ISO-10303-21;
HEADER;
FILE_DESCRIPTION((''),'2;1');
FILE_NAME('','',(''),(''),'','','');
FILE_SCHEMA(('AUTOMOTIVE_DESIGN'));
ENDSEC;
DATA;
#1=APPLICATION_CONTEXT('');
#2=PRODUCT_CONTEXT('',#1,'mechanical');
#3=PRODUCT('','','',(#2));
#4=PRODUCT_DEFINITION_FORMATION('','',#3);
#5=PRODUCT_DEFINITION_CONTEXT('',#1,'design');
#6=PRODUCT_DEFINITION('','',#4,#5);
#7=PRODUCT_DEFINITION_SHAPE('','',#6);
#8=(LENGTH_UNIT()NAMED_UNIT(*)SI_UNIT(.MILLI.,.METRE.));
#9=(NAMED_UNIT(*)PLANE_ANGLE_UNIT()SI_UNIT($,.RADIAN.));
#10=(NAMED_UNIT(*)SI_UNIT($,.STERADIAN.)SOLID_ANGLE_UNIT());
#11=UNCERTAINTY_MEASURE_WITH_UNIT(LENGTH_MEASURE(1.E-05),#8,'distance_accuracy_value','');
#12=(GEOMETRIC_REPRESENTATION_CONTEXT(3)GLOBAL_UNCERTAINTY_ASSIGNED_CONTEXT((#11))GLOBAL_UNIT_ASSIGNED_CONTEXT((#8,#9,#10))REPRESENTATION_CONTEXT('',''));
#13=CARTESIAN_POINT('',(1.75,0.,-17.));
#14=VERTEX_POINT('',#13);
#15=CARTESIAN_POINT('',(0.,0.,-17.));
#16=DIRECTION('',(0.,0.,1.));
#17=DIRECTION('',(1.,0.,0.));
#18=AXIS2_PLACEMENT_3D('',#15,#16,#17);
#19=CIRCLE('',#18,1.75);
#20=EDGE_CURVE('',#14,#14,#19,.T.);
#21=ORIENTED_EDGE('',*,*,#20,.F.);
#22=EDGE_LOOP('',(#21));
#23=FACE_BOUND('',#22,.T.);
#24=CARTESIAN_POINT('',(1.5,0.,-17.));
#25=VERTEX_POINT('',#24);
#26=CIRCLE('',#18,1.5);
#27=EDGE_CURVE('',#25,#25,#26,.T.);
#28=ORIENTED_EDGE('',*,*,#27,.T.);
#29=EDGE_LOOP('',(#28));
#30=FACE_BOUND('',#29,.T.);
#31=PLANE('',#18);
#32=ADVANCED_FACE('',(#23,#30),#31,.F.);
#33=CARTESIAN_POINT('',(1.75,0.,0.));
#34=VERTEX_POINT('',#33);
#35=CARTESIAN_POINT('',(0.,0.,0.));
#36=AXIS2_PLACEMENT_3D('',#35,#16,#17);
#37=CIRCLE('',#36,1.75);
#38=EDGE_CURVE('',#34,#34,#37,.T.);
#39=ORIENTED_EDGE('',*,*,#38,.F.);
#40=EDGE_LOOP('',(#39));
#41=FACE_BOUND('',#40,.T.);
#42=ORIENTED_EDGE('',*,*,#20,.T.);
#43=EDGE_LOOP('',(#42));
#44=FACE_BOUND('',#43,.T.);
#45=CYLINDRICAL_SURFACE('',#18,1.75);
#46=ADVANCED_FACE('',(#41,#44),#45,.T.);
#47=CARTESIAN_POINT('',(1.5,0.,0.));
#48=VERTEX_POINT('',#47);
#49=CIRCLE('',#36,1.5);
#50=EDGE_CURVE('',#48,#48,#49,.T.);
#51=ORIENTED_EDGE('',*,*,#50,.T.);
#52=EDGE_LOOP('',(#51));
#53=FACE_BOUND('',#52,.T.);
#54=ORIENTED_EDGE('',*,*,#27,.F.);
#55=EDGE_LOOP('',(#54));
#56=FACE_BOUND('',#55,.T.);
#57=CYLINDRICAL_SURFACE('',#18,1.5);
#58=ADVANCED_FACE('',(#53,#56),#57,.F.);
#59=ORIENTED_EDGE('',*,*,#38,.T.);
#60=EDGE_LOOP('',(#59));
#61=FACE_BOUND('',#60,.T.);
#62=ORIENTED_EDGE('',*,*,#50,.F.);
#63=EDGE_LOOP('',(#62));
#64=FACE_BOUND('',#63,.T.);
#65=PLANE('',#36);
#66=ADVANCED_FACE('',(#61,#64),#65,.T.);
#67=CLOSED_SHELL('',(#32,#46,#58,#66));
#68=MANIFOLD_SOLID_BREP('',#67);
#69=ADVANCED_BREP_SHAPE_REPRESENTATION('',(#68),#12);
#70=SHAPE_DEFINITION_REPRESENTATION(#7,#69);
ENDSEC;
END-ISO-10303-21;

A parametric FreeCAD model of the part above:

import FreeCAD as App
import Part
import Sketcher
Q = App.Units.Quantity

doc = App.newDocument("Part")
body = doc.addObject("PartDesign::Body", "Body")

# Sketch on XY plane
sketch1 = doc.addObject("Sketcher::SketchObject", "Sketch")
body.addObject(sketch1)
sketch1.AttachmentSupport = (doc.XY_Plane, [""])
sketch1.MapMode = "FlatFace"
sketch1.addGeometry([
    Part.Circle(App.Vector(0, 0, 0), App.Vector(0, 0, 1), 1.8),
    Part.Circle(App.Vector(0, 0, 0), App.Vector(0, 0, 1), 1.5),
], False)
sketch1.addConstraint([
    Sketcher.Constraint("Coincident", 0, 3, -1, 1),
    Sketcher.Constraint("Coincident", 1, 3, -1, 1),
    Sketcher.Constraint("Diameter", 1, Q("3 mm")),
    Sketcher.Constraint("Diameter", 0, Q("3.5 mm")),
])
pad1 = doc.addObject("PartDesign::Pad", "Pad")
body.addObject(pad1)
pad1.Profile = sketch1
pad1.Length = 17
pad1.Reversed = True

doc.recompute()
